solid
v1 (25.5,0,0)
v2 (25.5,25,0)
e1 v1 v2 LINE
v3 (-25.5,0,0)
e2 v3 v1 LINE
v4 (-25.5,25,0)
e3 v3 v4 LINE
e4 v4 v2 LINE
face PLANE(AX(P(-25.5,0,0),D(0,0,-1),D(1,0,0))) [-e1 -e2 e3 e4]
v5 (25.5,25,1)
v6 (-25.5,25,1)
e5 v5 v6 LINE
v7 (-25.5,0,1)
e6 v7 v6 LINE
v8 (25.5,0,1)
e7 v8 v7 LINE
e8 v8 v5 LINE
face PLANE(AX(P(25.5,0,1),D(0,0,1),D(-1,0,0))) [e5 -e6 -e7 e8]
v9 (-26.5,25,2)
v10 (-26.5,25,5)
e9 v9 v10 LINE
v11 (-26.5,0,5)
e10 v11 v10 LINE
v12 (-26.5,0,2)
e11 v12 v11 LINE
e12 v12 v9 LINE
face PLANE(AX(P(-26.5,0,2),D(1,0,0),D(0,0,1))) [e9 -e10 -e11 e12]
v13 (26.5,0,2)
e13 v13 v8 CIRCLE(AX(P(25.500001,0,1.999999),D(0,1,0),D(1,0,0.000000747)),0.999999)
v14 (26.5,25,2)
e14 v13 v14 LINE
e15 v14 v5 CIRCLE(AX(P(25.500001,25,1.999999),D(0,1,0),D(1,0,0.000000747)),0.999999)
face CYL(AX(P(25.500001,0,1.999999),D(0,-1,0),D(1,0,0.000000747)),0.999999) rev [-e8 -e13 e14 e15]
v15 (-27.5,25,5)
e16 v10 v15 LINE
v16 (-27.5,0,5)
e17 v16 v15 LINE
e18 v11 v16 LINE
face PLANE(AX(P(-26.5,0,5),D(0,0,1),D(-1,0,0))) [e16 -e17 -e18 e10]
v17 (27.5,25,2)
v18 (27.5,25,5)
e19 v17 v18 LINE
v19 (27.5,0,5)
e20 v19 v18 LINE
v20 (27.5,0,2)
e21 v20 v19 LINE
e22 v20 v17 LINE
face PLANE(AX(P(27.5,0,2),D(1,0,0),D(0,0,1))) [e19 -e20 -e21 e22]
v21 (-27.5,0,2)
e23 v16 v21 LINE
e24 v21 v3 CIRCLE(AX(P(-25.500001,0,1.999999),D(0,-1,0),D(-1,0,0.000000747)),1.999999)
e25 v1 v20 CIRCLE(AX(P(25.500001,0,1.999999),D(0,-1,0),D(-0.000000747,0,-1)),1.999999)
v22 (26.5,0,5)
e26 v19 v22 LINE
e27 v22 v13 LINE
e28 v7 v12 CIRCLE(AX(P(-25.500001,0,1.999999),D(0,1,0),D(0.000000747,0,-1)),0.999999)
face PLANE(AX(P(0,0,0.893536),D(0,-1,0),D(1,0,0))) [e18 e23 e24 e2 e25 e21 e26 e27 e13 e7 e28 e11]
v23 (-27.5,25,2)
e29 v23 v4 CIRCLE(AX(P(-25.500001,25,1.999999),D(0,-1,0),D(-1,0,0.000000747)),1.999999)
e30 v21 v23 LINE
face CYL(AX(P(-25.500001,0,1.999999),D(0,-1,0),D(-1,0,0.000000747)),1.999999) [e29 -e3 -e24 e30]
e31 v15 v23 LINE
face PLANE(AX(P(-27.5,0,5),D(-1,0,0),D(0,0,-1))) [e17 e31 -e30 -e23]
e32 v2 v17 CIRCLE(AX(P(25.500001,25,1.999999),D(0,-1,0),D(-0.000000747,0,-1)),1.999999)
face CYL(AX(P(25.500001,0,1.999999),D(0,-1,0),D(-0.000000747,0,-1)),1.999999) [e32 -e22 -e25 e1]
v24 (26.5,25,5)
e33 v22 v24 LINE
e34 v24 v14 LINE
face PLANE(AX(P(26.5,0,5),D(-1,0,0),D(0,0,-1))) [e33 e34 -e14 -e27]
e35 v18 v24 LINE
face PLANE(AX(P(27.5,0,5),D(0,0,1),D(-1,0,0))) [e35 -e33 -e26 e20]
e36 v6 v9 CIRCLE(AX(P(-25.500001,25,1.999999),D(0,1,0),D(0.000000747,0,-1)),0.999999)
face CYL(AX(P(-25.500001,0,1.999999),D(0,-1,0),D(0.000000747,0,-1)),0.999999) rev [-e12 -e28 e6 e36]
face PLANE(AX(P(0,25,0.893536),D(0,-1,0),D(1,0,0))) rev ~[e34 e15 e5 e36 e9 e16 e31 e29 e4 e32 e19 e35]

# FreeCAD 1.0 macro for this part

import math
import FreeCAD as App
import Part
import Sketcher
from FreeCAD import Vector
Q = App.Units.Quantity

doc = App.newDocument("Part")
body = doc.addObject("PartDesign::Body", "Body")

# Sketch on XZ plane
sketch1 = doc.addObject("Sketcher::SketchObject", "Sketch")
body.addObject(sketch1)
sketch1.AttachmentSupport = (doc.XZ_Plane, [""])
sketch1.MapMode = "FlatFace"
sketch1.addGeometry(Part.LineSegment(Vector(-26.5, 5, 0), Vector(-27.5, 5, 0)), False)
sketch1.addGeometry(Part.LineSegment(Vector(-27.5, 5, 0), Vector(-27.5, 2, 0)), False)
sketch1.addGeometry(Part.ArcOfCircle(Part.Circle(Vector(-25.500001, 1.999999, 0), Vector(0, 0, 1), 1.999999), math.radians(179.999957), math.radians(270.000043)), False)
sketch1.addGeometry(Part.LineSegment(Vector(-25.5, 0, 0), Vector(25.5, 0, 0)), False)
sketch1.addGeometry(Part.ArcOfCircle(Part.Circle(Vector(25.500001, 1.999999, 0), Vector(0, 0, 1), 1.999999), math.radians(-90.000043), math.radians(0.000043)), False)
sketch1.addGeometry(Part.LineSegment(Vector(27.5, 2, 0), Vector(27.5, 5, 0)), False)
sketch1.addGeometry(Part.LineSegment(Vector(27.5, 5, 0), Vector(26.5, 5, 0)), False)
sketch1.addGeometry(Part.LineSegment(Vector(26.5, 5, 0), Vector(26.5, 2, 0)), False)
sketch1.addGeometry(Part.ArcOfCircle(Part.Circle(Vector(25.500001, 1.999999, 0), Vector(0, 0, 1), 0.999999), math.radians(-90.000043), math.radians(0.000043)), False)
sketch1.addGeometry(Part.LineSegment(Vector(25.5, 1, 0), Vector(-25.5, 1, 0)), False)
sketch1.addGeometry(Part.ArcOfCircle(Part.Circle(Vector(-25.500001, 1.999999, 0), Vector(0, 0, 1), 0.999999), math.radians(179.999957), math.radians(270.000043)), False)
sketch1.addGeometry(Part.LineSegment(Vector(-26.5, 2, 0), Vector(-26.5, 5, 0)), False)
sketch1.addConstraint(Sketcher.Constraint("Coincident", 0, 2, 1, 1))
sketch1.addConstraint(Sketcher.Constraint("Tangent", 1, 2, 2, 1))
sketch1.addConstraint(Sketcher.Constraint("Tangent", 2, 2, 3, 1))
sketch1.addConstraint(Sketcher.Constraint("Tangent", 3, 2, 4, 1))
sketch1.addConstraint(Sketcher.Constraint("Tangent", 4, 2, 5, 1))
sketch1.addConstraint(Sketcher.Constraint("Coincident", 5, 2, 6, 1))
sketch1.addConstraint(Sketcher.Constraint("Coincident", 6, 2, 7, 1))
sketch1.addConstraint(Sketcher.Constraint("Tangent", 7, 2, 8, 2))
sketch1.addConstraint(Sketcher.Constraint("Tangent", 8, 1, 9, 1))
sketch1.addConstraint(Sketcher.Constraint("Tangent", 9, 2, 10, 2))
sketch1.addConstraint(Sketcher.Constraint("Tangent", 10, 1, 11, 1))
sketch1.addConstraint(Sketcher.Constraint("Coincident", 11, 2, 0, 1))
sketch1.addConstraint(Sketcher.Constraint("Horizontal", 0))
sketch1.addConstraint(Sketcher.Constraint("Vertical", 1))
sketch1.addConstraint(Sketcher.Constraint("Horizontal", 3))
sketch1.addConstraint(Sketcher.Constraint("Vertical", 5))
sketch1.addConstraint(Sketcher.Constraint("Horizontal", 6))
sketch1.addConstraint(Sketcher.Constraint("Vertical", 7))
sketch1.addConstraint(Sketcher.Constraint("Horizontal", 9))
sketch1.addConstraint(Sketcher.Constraint("Vertical", 11))
sketch1.addConstraint(Sketcher.Constraint("Coincident", 8, 3, 4, 3))
sketch1.addConstraint(Sketcher.Constraint("Coincident", 10, 3, 2, 3))
sketch1.addConstraint(Sketcher.Constraint("Equal", 2, 4))
sketch1.addConstraint(Sketcher.Constraint("Symmetric", 2, 2, 3, 2, -1, 1))
sketch1.addConstraint(Sketcher.Constraint("Horizontal", 0, 2, 5, 2))
sketch1.addConstraint(Sketcher.Constraint("Radius", 2, Q("1.999999 mm")))
sketch1.addConstraint(Sketcher.Constraint("Radius", 8, Q("0.999999 mm")))
sketch1.addConstraint(Sketcher.Constraint("DistanceX", 3, 1, 3, 2, Q("51 mm")))
sketch1.addConstraint(Sketcher.Constraint("DistanceY", 1, 2, 1, 1, Q("3 mm")))
pad1 = doc.addObject("PartDesign::Pad", "Pad")
body.addObject(pad1)
pad1.Profile = sketch1
pad1.Length = 25
pad1.Reversed = True

doc.recompute()
